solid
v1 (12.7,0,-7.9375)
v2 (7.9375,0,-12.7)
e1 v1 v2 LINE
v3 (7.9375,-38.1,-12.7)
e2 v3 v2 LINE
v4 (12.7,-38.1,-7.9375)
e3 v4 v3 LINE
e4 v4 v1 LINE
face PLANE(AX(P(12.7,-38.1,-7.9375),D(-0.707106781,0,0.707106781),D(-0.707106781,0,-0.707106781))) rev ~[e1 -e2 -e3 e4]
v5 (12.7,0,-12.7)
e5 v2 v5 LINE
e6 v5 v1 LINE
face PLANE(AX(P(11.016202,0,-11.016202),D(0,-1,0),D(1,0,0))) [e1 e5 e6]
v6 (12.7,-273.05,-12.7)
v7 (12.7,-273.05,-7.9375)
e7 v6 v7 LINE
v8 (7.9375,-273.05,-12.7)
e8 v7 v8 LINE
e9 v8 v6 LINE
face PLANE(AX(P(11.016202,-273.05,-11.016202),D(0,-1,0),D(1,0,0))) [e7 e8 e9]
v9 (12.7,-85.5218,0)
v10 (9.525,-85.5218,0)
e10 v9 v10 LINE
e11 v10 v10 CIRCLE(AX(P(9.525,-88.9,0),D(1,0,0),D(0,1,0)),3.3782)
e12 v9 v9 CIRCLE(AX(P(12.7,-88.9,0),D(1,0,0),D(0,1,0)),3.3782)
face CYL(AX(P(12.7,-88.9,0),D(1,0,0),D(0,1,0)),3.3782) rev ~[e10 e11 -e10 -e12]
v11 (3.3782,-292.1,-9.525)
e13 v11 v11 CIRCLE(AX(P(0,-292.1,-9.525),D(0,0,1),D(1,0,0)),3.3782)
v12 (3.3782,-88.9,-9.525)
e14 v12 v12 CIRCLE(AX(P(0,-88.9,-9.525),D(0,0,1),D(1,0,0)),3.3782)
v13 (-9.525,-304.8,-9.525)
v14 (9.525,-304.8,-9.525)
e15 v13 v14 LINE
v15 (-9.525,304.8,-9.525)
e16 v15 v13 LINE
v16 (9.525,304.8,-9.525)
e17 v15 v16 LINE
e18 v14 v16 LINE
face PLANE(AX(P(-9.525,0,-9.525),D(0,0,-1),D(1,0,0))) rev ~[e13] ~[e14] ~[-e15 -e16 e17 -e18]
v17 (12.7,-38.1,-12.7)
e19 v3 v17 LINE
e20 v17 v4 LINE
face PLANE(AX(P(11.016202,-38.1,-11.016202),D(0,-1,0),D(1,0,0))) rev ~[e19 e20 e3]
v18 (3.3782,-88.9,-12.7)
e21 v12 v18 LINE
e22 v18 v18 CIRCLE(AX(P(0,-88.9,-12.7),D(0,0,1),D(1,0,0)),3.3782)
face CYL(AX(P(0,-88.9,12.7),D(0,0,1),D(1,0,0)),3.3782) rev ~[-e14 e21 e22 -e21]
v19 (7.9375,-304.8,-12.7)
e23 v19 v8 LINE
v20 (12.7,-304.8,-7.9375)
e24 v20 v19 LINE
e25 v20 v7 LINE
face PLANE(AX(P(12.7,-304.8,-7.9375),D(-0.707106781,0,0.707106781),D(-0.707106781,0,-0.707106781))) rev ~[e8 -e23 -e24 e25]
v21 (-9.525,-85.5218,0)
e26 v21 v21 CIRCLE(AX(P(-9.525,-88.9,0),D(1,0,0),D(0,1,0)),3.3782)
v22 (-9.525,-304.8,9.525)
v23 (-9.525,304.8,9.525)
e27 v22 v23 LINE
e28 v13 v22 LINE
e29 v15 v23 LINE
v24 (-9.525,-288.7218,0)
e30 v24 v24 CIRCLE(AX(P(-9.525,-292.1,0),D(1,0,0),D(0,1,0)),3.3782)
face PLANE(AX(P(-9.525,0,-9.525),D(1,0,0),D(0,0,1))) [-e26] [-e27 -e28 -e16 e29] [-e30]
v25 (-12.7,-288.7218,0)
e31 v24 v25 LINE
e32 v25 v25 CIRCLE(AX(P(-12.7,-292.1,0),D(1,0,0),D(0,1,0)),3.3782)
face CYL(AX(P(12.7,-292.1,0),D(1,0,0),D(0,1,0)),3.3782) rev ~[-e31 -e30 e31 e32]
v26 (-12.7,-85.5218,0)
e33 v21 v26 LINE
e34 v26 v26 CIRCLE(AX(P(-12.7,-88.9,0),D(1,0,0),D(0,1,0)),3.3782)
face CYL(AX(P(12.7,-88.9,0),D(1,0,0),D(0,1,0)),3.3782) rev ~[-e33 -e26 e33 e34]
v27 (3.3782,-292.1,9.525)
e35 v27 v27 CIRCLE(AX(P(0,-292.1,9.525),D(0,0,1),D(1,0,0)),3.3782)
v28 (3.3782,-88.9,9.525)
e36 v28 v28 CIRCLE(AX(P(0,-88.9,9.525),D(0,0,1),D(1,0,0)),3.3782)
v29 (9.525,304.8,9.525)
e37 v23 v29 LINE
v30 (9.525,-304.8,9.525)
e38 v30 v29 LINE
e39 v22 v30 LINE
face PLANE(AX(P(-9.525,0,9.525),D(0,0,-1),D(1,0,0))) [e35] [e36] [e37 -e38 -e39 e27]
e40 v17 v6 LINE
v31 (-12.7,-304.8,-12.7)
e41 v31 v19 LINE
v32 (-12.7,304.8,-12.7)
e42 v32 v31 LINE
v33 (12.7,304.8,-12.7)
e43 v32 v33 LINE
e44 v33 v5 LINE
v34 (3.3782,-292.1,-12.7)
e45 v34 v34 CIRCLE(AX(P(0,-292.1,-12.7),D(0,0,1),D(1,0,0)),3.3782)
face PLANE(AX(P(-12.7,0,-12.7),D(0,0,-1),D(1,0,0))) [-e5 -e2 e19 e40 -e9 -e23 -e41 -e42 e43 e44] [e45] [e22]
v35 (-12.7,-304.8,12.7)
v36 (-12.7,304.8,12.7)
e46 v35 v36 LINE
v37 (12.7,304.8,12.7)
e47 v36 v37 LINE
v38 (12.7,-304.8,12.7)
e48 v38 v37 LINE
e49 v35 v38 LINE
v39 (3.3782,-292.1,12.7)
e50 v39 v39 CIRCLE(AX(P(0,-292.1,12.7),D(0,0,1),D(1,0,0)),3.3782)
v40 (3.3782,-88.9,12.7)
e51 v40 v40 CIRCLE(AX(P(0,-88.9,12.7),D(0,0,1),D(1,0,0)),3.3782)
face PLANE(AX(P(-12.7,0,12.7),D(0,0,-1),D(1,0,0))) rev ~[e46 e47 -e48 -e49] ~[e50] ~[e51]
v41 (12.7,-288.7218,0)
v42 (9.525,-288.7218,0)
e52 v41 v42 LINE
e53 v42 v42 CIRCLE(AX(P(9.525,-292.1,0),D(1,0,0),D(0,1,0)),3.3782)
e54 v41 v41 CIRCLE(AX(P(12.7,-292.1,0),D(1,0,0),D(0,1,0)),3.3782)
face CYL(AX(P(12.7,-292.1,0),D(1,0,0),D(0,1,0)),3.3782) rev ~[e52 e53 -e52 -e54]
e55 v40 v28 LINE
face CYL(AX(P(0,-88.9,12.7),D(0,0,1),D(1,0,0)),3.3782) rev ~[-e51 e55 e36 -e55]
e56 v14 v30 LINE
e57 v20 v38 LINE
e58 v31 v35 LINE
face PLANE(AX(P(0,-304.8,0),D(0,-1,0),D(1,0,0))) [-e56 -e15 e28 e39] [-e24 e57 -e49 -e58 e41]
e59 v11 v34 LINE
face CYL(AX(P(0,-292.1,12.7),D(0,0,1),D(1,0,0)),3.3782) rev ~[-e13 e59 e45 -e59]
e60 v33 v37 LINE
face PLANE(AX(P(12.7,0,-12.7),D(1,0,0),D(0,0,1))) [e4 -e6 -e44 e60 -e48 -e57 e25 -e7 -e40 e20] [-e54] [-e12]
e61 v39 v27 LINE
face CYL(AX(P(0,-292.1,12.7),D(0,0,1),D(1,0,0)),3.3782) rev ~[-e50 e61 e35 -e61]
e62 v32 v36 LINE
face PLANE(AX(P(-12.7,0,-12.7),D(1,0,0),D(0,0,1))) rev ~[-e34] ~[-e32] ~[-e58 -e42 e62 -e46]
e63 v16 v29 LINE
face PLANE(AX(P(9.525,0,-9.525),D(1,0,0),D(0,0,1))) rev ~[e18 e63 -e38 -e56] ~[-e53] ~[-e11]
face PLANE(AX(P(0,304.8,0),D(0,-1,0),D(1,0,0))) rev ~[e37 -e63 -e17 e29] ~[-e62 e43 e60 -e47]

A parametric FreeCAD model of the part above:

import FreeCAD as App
import Part
import Sketcher
from FreeCAD import Vector
Q = App.Units.Quantity


def add_polygon(sketch, points):
    """Adds a closed chain of lines whose ends are joined by coincident constraints."""
    first, n = sketch.GeometryCount, len(points)
    for a, b in zip(points, points[1:] + points[:1]):
        sketch.addGeometry(Part.LineSegment(App.Vector(*a, 0), App.Vector(*b, 0)), False)
    for i in range(n):
        sketch.addConstraint(Sketcher.Constraint("Coincident", first + i, 2, first + (i + 1) % n, 1))

doc = App.newDocument("Part")
body = doc.addObject("PartDesign::Body", "Body")

# Sketch on XZ plane
sketch1 = body.newObject("Sketcher::SketchObject", "Sketch")
sketch1.AttachmentSupport = (doc.getObject("XZ_Plane"), [""])
sketch1.MapMode = "FlatFace"
add_polygon(sketch1, [(-13, 13), (-13, -13), (13, -13), (13, 13)])  # lines 0-3
add_polygon(sketch1, [(10, -10), (-10, -10), (-10, 10), (10, 10)])  # lines 4-7
sketch1.addConstraint(Sketcher.Constraint("Vertical", 0))
sketch1.addConstraint(Sketcher.Constraint("Horizontal", 1))
sketch1.addConstraint(Sketcher.Constraint("Vertical", 2))
sketch1.addConstraint(Sketcher.Constraint("Horizontal", 3))
sketch1.addConstraint(Sketcher.Constraint("Horizontal", 4))
sketch1.addConstraint(Sketcher.Constraint("Vertical", 5))
sketch1.addConstraint(Sketcher.Constraint("Horizontal", 6))
sketch1.addConstraint(Sketcher.Constraint("Vertical", 7))
sketch1.addConstraint(Sketcher.Constraint("Symmetric", 0, 2, 2, 2, -1, 1))
sketch1.addConstraint(Sketcher.Constraint("Symmetric", 4, 2, 6, 2, -1, 1))
sketch1.addConstraint(Sketcher.Constraint("Equal", 3, 0))
sketch1.addConstraint(Sketcher.Constraint("Equal", 6, 5))
sketch1.addConstraint(Sketcher.Constraint("DistanceX", 1, 1, 1, 2, Q("1 in")))
sketch1.addConstraint(Sketcher.Constraint("DistanceX", 4, 2, 4, 1, Q("0.75 in")))
pad1 = body.newObject("PartDesign::Pad", "Pad")
pad1.Profile = sketch1
pad1.Length = Q("24 in")
pad1.Midplane = True

# Sketch on XY plane
sketch2 = body.newObject("Sketcher::SketchObject", "Sketch001")
sketch2.AttachmentSupport = (doc.getObject("XY_Plane"), [""])
sketch2.MapMode = "FlatFace"
sketch2.AttachmentOffset = App.Placement(Vector(0, 0, 0.5 * 25.4), App.Rotation())
sketch2.addGeometry(Part.Circle(Vector(0, -292.1, 0), Vector(0, 0, 1), 3.4), False)
sketch2.addGeometry(Part.Circle(Vector(0, -88.9, 0), Vector(0, 0, 1), 3.4), False)
sketch2.addConstraint(Sketcher.Constraint("Equal", 0, 1))
sketch2.addConstraint(Sketcher.Constraint("PointOnObject", 0, 3, -2))
sketch2.addConstraint(Sketcher.Constraint("PointOnObject", 1, 3, -2))
sketch2.addConstraint(Sketcher.Constraint("Diameter", 0, Q("0.266 in")))
sketch2.addConstraint(Sketcher.Constraint("DistanceY", 0, 3, 1, 3, Q("8 in")))
sketch2.addConstraint(Sketcher.Constraint("DistanceY", 0, 3, -1, 1, Q("11.5 in")))
pocket1 = body.newObject("PartDesign::Pocket", "Pocket")
pocket1.Profile = sketch2
pocket1.Type = "ThroughAll"

# Sketch on YZ plane
sketch3 = body.newObject("Sketcher::SketchObject", "Sketch002")
sketch3.AttachmentSupport = (doc.getObject("YZ_Plane"), [""])
sketch3.MapMode = "FlatFace"
sketch3.AttachmentOffset = App.Placement(Vector(0, 0, 0.5 * 25.4), App.Rotation())
sketch3.addGeometry(Part.Circle(Vector(-292.1, 0, 0), Vector(0, 0, 1), 3.4), False)
sketch3.addGeometry(Part.Circle(Vector(-88.9, 0, 0), Vector(0, 0, 1), 3.4), False)
sketch3.addConstraint(Sketcher.Constraint("Equal", 0, 1))
sketch3.addConstraint(Sketcher.Constraint("PointOnObject", 0, 3, -1))
sketch3.addConstraint(Sketcher.Constraint("PointOnObject", 1, 3, -1))
sketch3.addConstraint(Sketcher.Constraint("Diameter", 0, Q("0.266 in")))
sketch3.addConstraint(Sketcher.Constraint("DistanceX", 0, 3, 1, 3, Q("8 in")))
sketch3.addConstraint(Sketcher.Constraint("DistanceX", 0, 3, -1, 1, Q("11.5 in")))
pocket2 = body.newObject("PartDesign::Pocket", "Pocket001")
pocket2.Profile = sketch3
pocket2.Type = "ThroughAll"

# Sketch on XZ plane
sketch4 = body.newObject("Sketcher::SketchObject", "Sketch003")
sketch4.AttachmentSupport = (doc.getObject("XZ_Plane"), [""])
sketch4.MapMode = "FlatFace"
sketch4.AttachmentOffset = App.Placement(Vector(0, 0, 12 * 25.4), App.Rotation())
add_polygon(sketch4, [(12.7, -12.7), (12.7, -7.9), (7.9, -12.7)])  # lines 0-2
sketch4.addConstraint(Sketcher.Constraint("Vertical", 0))
sketch4.addConstraint(Sketcher.Constraint("Horizontal", 2))
sketch4.addConstraint(Sketcher.Constraint("Equal", 2, 0))
sketch4.addConstraint(Sketcher.Constraint("DistanceX", -1, 1, 0, 2, Q("0.5 in")))
sketch4.addConstraint(Sketcher.Constraint("DistanceY", 1, 2, -1, 1, Q("0.5 in")))
sketch4.addConstraint(Sketcher.Constraint("DistanceX", 2, 1, 2, 2, Q("0.1875 in")))
pocket3 = body.newObject("PartDesign::Pocket", "Pocket002")
pocket3.Profile = sketch4
pocket3.Length = Q("1.25 in")

# Sketch on XZ plane
sketch5 = body.newObject("Sketcher::SketchObject", "Sketch004")
sketch5.AttachmentSupport = (doc.getObject("XZ_Plane"), [""])
sketch5.MapMode = "FlatFace"
sketch5.AttachmentOffset = App.Placement(Vector(0, 0, 1.5 * 25.4), App.Rotation())
add_polygon(sketch5, [(12.7, -12.7), (12.7, -7.9), (7.9, -12.7)])  # lines 0-2
sketch5.addConstraint(Sketcher.Constraint("Vertical", 0))
sketch5.addConstraint(Sketcher.Constraint("Horizontal", 2))
sketch5.addConstraint(Sketcher.Constraint("Equal", 2, 0))
sketch5.addConstraint(Sketcher.Constraint("DistanceX", -1, 1, 0, 2, Q("0.5 in")))
sketch5.addConstraint(Sketcher.Constraint("DistanceY", 1, 2, -1, 1, Q("0.5 in")))
sketch5.addConstraint(Sketcher.Constraint("DistanceX", 2, 1, 2, 2, Q("0.1875 in")))
pocket4 = body.newObject("PartDesign::Pocket", "Pocket003")
pocket4.Profile = sketch5
pocket4.Length = Q("1.5 in")

doc.recompute()
